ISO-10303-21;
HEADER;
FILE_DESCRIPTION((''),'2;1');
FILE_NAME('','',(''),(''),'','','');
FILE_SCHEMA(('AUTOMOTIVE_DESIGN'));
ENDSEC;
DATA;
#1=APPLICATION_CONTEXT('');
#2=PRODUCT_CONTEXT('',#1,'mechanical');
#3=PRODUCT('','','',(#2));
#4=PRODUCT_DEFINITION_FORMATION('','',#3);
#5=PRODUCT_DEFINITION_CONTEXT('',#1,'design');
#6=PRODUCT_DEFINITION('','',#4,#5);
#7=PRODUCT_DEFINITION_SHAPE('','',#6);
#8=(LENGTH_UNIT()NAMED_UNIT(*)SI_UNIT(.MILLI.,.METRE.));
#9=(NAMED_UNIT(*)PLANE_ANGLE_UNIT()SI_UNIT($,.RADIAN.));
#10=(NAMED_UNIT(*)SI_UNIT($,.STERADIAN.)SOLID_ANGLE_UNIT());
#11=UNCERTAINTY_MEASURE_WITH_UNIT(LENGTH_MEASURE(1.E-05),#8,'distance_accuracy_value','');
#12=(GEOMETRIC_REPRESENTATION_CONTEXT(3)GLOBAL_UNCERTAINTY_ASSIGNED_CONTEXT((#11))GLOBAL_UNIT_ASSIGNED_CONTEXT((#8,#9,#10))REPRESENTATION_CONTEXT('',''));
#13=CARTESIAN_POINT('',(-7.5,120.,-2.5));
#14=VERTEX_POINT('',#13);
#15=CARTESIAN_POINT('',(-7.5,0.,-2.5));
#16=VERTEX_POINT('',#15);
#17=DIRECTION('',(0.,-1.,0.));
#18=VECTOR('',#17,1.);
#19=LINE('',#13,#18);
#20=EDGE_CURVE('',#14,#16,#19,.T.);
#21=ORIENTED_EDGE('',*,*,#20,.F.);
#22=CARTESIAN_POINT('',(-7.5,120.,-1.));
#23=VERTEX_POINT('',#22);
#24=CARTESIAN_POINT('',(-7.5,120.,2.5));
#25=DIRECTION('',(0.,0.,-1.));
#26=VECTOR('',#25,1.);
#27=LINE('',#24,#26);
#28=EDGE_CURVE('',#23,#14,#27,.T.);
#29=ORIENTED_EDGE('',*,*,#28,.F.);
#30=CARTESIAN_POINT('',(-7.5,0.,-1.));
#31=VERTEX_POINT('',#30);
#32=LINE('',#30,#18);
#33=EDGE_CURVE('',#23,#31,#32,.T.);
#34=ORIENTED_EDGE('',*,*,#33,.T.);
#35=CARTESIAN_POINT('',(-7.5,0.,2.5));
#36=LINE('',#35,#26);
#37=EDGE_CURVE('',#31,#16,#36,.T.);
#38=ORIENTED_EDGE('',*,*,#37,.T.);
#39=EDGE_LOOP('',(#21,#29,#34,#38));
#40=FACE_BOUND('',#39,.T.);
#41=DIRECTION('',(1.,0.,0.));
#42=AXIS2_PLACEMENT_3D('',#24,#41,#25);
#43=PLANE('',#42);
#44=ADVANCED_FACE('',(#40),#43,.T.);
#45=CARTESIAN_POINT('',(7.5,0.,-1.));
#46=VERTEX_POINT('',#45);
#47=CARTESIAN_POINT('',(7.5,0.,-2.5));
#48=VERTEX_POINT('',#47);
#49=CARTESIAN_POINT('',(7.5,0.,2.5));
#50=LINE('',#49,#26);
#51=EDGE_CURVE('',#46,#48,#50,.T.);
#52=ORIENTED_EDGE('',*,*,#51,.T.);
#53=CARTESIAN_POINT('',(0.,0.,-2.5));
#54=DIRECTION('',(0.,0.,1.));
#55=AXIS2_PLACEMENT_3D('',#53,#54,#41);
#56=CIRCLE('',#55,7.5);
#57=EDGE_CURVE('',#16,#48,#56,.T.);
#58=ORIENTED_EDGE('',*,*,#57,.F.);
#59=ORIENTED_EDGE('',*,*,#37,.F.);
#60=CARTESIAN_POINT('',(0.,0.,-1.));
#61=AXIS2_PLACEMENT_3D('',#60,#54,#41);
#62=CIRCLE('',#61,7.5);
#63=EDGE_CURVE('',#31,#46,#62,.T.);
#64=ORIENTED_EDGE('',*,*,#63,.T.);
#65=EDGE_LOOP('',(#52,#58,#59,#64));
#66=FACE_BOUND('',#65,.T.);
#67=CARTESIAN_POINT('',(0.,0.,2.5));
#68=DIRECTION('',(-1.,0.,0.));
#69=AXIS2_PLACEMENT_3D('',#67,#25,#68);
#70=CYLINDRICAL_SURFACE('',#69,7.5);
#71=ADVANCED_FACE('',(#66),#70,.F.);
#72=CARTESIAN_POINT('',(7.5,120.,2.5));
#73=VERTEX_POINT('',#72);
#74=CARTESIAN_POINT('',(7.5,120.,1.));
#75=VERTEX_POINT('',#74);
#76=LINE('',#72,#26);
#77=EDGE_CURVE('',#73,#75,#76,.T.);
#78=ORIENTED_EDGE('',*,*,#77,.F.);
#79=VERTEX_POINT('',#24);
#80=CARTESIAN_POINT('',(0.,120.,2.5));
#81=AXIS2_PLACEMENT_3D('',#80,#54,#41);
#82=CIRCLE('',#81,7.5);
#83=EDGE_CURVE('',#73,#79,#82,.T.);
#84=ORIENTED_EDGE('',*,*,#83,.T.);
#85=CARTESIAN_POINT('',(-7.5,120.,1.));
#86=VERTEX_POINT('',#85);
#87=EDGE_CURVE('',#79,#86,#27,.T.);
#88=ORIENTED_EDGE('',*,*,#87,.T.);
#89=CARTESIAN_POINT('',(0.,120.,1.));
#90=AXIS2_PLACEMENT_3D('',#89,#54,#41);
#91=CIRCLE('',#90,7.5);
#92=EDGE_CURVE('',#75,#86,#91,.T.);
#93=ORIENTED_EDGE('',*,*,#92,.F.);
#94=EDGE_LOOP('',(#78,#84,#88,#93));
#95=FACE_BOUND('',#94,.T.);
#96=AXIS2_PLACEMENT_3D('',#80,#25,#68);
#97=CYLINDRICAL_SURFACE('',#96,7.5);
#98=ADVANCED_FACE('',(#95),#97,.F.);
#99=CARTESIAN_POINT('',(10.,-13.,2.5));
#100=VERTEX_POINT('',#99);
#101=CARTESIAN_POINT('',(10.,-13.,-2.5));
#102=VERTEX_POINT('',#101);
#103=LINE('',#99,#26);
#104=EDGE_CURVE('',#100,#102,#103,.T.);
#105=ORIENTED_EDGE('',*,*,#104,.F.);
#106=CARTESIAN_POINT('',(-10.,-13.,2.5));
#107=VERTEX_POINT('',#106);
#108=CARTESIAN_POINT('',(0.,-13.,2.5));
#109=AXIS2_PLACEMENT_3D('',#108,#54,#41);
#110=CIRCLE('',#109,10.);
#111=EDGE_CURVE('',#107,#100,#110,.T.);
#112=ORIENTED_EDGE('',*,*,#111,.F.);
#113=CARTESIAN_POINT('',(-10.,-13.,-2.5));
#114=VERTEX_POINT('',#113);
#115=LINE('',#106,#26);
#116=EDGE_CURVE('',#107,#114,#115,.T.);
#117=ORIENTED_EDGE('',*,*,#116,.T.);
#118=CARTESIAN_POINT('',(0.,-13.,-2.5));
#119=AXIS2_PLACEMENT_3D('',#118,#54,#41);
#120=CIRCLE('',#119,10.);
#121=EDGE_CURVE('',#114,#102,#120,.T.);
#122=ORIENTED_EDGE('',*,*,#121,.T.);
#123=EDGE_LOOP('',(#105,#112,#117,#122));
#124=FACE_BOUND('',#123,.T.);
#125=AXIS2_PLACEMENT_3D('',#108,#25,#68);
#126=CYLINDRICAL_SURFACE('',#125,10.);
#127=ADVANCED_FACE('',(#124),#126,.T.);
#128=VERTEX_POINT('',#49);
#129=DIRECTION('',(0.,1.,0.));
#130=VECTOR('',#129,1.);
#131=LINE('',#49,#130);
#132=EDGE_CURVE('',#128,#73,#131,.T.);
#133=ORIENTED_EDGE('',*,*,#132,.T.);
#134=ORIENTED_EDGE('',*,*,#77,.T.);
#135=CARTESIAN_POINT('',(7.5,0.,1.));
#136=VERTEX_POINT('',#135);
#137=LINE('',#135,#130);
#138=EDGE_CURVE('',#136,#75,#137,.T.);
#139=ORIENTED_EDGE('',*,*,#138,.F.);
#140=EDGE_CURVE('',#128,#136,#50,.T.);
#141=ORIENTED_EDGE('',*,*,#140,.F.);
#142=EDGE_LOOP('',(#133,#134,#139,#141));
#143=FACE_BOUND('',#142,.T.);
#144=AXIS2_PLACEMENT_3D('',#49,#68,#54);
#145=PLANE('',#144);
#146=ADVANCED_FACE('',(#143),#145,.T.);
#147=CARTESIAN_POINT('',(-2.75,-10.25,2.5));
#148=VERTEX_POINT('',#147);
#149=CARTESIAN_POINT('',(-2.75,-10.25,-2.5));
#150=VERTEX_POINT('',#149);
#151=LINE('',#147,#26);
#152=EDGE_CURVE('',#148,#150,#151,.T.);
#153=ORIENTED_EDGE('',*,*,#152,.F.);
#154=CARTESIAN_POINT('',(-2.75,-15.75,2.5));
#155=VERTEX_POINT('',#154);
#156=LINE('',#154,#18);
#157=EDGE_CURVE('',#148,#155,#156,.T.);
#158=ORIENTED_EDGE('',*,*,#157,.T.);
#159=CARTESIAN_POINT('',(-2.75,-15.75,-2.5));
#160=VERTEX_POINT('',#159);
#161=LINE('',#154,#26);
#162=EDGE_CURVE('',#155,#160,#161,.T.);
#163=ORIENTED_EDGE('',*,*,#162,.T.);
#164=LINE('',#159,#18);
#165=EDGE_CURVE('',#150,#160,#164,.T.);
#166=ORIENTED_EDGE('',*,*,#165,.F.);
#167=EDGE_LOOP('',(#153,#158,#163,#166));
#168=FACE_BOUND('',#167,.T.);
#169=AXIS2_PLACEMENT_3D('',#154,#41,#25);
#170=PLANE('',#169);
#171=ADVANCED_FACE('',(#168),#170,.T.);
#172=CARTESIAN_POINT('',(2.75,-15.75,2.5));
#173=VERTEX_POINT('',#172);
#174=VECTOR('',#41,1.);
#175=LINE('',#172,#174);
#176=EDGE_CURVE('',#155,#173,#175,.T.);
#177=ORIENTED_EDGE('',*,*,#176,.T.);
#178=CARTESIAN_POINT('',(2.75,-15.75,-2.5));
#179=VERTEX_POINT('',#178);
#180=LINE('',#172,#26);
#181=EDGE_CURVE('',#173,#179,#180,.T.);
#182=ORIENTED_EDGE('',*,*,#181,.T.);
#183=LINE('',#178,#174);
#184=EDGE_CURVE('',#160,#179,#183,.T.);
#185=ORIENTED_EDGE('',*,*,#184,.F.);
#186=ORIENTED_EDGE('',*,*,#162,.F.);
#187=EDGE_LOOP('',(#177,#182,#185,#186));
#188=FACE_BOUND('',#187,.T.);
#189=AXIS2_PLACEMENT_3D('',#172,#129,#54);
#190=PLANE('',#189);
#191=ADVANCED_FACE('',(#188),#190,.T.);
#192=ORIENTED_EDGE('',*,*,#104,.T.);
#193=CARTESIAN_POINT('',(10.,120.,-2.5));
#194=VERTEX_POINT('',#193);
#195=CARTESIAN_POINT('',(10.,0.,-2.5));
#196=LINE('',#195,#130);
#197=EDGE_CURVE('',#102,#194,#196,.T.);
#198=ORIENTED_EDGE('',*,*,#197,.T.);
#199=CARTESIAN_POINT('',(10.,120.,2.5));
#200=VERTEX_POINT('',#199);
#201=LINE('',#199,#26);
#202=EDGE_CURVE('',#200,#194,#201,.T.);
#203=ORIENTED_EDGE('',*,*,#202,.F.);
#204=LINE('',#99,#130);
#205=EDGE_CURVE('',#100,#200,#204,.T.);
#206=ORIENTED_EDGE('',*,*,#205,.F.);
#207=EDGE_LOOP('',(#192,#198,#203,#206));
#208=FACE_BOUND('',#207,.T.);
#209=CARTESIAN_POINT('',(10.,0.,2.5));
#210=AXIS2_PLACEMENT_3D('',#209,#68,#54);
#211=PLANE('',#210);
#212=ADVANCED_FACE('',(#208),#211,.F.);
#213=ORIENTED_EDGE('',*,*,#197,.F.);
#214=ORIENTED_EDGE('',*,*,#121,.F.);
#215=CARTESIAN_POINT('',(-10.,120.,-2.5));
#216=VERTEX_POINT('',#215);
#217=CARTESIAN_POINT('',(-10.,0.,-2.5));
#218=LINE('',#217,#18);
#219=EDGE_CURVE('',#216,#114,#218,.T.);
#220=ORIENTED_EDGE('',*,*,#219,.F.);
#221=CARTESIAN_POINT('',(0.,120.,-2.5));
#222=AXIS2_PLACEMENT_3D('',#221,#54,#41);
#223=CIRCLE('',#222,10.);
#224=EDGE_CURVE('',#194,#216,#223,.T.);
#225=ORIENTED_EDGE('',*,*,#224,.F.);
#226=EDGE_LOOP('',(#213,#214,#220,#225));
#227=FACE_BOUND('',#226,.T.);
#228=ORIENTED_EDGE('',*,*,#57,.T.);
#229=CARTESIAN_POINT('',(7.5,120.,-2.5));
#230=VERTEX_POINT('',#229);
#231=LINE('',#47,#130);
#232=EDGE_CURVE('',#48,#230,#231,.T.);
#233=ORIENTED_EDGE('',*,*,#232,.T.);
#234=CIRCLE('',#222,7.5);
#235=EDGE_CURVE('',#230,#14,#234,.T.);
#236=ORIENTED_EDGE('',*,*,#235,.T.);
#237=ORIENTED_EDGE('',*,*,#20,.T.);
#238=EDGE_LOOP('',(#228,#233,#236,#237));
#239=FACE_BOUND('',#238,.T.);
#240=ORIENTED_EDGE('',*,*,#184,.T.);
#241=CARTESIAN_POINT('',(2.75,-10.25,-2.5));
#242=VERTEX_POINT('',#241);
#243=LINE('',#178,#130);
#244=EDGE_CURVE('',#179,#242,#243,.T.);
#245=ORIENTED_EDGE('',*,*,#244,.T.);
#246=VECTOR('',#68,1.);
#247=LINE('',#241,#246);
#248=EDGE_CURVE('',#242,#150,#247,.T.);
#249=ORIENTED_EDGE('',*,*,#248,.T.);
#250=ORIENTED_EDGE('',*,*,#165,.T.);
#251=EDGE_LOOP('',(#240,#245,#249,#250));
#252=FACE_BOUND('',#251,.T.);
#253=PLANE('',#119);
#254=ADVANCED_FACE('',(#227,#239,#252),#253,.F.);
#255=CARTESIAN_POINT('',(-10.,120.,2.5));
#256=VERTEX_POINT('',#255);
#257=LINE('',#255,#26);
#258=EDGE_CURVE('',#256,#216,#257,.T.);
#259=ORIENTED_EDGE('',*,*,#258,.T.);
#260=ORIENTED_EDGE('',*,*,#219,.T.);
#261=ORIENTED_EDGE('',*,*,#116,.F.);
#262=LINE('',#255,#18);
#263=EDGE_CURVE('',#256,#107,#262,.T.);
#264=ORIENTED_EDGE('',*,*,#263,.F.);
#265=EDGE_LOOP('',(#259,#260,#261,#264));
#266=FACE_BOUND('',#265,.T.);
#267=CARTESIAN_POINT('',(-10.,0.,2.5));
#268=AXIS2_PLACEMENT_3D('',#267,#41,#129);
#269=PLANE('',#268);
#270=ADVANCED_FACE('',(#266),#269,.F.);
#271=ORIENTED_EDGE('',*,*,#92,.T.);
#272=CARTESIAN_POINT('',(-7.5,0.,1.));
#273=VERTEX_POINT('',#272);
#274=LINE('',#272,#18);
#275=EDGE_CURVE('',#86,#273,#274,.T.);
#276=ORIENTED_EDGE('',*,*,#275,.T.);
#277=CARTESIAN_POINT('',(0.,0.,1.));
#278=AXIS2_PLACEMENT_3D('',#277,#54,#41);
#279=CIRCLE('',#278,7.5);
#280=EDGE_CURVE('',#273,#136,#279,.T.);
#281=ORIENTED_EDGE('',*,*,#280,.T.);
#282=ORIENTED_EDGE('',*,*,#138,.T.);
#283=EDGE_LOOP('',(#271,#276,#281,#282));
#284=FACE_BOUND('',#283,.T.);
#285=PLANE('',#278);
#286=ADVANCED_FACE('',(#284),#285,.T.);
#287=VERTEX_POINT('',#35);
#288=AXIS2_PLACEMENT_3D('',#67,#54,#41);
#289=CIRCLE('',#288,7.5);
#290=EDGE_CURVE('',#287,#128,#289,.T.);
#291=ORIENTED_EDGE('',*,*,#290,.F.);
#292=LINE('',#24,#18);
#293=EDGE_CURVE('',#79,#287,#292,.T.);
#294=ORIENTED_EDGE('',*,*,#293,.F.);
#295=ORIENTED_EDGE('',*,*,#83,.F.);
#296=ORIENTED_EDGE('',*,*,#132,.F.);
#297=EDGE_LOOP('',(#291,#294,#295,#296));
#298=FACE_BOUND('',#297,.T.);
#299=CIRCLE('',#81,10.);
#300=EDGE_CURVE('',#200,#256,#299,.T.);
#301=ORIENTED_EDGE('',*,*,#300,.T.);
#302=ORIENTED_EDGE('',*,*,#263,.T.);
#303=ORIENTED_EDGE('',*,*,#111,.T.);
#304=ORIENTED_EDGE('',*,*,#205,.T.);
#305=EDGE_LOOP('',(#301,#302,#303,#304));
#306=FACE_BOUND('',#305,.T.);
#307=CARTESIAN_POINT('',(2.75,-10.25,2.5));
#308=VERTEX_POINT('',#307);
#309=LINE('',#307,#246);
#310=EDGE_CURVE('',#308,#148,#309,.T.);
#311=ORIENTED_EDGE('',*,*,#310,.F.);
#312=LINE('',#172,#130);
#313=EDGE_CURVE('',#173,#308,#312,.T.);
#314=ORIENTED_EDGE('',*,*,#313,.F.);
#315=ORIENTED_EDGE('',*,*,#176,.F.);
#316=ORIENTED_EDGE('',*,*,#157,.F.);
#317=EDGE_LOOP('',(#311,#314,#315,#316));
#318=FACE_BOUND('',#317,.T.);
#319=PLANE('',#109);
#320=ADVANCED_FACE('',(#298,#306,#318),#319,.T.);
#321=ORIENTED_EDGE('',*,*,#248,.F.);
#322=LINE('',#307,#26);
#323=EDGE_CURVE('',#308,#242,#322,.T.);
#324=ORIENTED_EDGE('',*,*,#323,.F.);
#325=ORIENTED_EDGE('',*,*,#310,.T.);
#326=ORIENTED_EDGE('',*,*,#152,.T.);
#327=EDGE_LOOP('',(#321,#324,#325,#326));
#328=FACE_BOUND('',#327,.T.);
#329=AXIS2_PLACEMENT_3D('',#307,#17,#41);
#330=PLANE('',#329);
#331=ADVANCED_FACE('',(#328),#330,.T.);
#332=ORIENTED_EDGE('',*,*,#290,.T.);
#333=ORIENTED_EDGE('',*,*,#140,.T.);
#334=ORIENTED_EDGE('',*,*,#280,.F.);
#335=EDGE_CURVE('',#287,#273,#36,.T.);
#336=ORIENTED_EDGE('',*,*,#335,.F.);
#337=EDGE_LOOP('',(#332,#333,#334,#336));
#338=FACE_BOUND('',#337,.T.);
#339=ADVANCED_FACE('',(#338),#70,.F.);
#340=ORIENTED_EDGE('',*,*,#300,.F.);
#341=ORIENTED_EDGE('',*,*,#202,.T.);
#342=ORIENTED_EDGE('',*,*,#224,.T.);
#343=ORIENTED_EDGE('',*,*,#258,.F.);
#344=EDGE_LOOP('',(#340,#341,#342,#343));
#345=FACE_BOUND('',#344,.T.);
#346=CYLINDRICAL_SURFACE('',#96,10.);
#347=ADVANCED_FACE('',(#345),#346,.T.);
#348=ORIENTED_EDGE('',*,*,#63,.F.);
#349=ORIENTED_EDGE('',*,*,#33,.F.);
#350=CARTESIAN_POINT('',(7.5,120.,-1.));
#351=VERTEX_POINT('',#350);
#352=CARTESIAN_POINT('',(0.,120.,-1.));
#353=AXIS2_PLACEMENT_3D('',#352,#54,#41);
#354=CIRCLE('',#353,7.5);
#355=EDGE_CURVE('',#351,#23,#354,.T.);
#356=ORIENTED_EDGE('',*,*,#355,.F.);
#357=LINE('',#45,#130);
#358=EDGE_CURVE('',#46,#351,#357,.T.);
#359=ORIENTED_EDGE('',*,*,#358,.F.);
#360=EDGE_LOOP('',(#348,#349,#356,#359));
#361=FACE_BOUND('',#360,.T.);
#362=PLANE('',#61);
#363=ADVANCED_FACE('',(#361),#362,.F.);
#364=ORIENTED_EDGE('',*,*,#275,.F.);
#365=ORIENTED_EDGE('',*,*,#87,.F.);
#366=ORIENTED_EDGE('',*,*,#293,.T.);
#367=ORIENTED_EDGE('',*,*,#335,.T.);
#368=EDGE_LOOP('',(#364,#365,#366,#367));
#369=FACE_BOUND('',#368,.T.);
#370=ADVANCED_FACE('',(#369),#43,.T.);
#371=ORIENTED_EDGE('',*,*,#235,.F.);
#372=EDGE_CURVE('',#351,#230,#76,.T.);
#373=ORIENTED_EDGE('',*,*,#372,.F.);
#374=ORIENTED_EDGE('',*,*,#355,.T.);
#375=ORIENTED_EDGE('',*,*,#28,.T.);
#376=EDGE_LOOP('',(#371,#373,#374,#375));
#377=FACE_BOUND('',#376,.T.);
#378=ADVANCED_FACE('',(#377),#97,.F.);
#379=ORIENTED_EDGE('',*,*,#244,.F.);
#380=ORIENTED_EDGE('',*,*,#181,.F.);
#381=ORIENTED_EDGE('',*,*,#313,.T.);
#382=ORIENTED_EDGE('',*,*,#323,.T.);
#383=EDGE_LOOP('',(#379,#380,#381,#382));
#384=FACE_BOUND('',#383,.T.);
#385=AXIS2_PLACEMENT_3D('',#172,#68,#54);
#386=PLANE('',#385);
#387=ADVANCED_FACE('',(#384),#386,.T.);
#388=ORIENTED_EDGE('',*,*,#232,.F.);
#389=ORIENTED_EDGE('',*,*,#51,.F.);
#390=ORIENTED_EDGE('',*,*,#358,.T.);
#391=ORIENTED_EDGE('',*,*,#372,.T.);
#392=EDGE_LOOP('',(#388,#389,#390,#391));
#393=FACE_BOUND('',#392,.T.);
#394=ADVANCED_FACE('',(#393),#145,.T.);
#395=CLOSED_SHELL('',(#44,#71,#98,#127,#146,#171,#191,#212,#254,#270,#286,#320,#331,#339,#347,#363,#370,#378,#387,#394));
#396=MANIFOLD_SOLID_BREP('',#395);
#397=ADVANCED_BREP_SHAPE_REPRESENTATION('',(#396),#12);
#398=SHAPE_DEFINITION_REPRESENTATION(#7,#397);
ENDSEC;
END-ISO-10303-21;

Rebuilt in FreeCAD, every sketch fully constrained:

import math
import FreeCAD as App
import Part
import Sketcher
from FreeCAD import Vector
Q = App.Units.Quantity


def add_polygon(sketch, points):
    """Adds a closed chain of lines whose ends are joined by coincident constraints."""
    first, n = sketch.GeometryCount, len(points)
    for a, b in zip(points, points[1:] + points[:1]):
        sketch.addGeometry(Part.LineSegment(App.Vector(*a, 0), App.Vector(*b, 0)), False)
    for i in range(n):
        sketch.addConstraint(Sketcher.Constraint("Coincident", first + i, 2, first + (i + 1) % n, 1))

doc = App.newDocument("Part")
body = doc.addObject("PartDesign::Body", "Body")

sketch1 = doc.addObject("Sketcher::SketchObject", "Sketch")
body.addObject(sketch1)
sketch1.AttachmentSupport = (doc.XY_Plane, [""])
sketch1.MapMode = "FlatFace"
sketch1.addGeometry(Part.LineSegment(Vector(-8, 120, 0), Vector(-8, 0, 0)), False)
sketch1.addGeometry(Part.ArcOfCircle(Part.Circle(Vector(0, 0, 0), Vector(0, 0, 1), 8), math.radians(180), math.radians(360)), False)
sketch1.addGeometry(Part.LineSegment(Vector(8, 0, 0), Vector(8, 120, 0)), False)
sketch1.addGeometry(Part.ArcOfCircle(Part.Circle(Vector(0, 120, 0), Vector(0, 0, 1), 8), math.radians(0), math.radians(180)), False)
sketch1.addConstraint(Sketcher.Constraint("Tangent", 0, 2, 1, 1))
sketch1.addConstraint(Sketcher.Constraint("Tangent", 1, 2, 2, 1))
sketch1.addConstraint(Sketcher.Constraint("Tangent", 2, 2, 3, 1))
sketch1.addConstraint(Sketcher.Constraint("Tangent", 3, 2, 0, 1))
sketch1.addConstraint(Sketcher.Constraint("Vertical", 0))
sketch1.addConstraint(Sketcher.Constraint("Vertical", 2))
sketch1.addConstraint(Sketcher.Constraint("Coincident", 1, 3, -1, 1))
sketch1.addConstraint(Sketcher.Constraint("Radius", 1, Q("7.5 mm")))
sketch1.addConstraint(Sketcher.Constraint("DistanceY", 0, 2, 0, 1, Q("120 mm")))
pad1 = doc.addObject("PartDesign::Pad", "Pad")
body.addObject(pad1)
pad1.Profile = sketch1
pad1.Length = 2
pad1.Midplane = True

sketch2 = doc.addObject("Sketcher::SketchObject", "Sketch001")
body.addObject(sketch2)
sketch2.AttachmentSupport = (doc.XY_Plane, [""])
sketch2.MapMode = "FlatFace"
sketch2.addGeometry(Part.ArcOfCircle(Part.Circle(Vector(0, -13, 0), Vector(0, 0, 1), 10), math.radians(180), math.radians(360)), False)
sketch2.addGeometry(Part.LineSegment(Vector(10, -13, 0), Vector(10, 120, 0)), False)
sketch2.addGeometry(Part.ArcOfCircle(Part.Circle(Vector(0, 120, 0), Vector(0, 0, 1), 10), math.radians(0), math.radians(180)), False)
sketch2.addGeometry(Part.LineSegment(Vector(-10, 120, 0), Vector(-10, -13, 0)), False)
add_polygon(sketch2, [(3, -16), (-3, -16), (-3, -10), (3, -10)])
sketch2.addGeometry(Part.LineSegment(Vector(-8, 0, 0), Vector(-8, 120, 0)), False)
sketch2.addGeometry(Part.ArcOfCircle(Part.Circle(Vector(0, 120, 0), Vector(0, 0, 1), 8), math.radians(0), math.radians(180)), False)
sketch2.addGeometry(Part.LineSegment(Vector(8, 120, 0), Vector(8, 0, 0)), False)
sketch2.addGeometry(Part.ArcOfCircle(Part.Circle(Vector(0, 0, 0), Vector(0, 0, 1), 8), math.radians(180), math.radians(360)), False)
sketch2.addConstraint(Sketcher.Constraint("Tangent", 0, 2, 1, 1))
sketch2.addConstraint(Sketcher.Constraint("Tangent", 1, 2, 2, 1))
sketch2.addConstraint(Sketcher.Constraint("Tangent", 2, 2, 3, 1))
sketch2.addConstraint(Sketcher.Constraint("Tangent", 3, 2, 0, 1))
sketch2.addConstraint(Sketcher.Constraint("Tangent", 8, 2, 9, 2))
sketch2.addConstraint(Sketcher.Constraint("Tangent", 9, 1, 10, 1))
sketch2.addConstraint(Sketcher.Constraint("Tangent", 10, 2, 11, 2))
sketch2.addConstraint(Sketcher.Constraint("Tangent", 11, 1, 8, 1))
sketch2.addConstraint(Sketcher.Constraint("Vertical", 1))
sketch2.addConstraint(Sketcher.Constraint("Vertical", 3))
sketch2.addConstraint(Sketcher.Constraint("Horizontal", 4))
sketch2.addConstraint(Sketcher.Constraint("Vertical", 5))
sketch2.addConstraint(Sketcher.Constraint("Horizontal", 6))
sketch2.addConstraint(Sketcher.Constraint("Vertical", 7))
sketch2.addConstraint(Sketcher.Constraint("Vertical", 8))
sketch2.addConstraint(Sketcher.Constraint("Vertical", 10))
sketch2.addConstraint(Sketcher.Constraint("Coincident", 11, 3, -1, 1))
sketch2.addConstraint(Sketcher.Constraint("Coincident", 9, 3, 2, 3))
sketch2.addConstraint(Sketcher.Constraint("Equal", 6, 5))
sketch2.addConstraint(Sketcher.Constraint("Radius", 0, Q("10 mm")))
sketch2.addConstraint(Sketcher.Constraint("Radius", 9, Q("7.5 mm")))
sketch2.addConstraint(Sketcher.Constraint("DistanceY", 1, 1, 1, 2, Q("133 mm")))
sketch2.addConstraint(Sketcher.Constraint("DistanceY", 8, 1, 8, 2, Q("120 mm")))
sketch2.addConstraint(Sketcher.Constraint("DistanceX", 4, 2, 4, 1, Q("5.5 mm")))
sketch2.addConstraint(Sketcher.Constraint("DistanceX", 4, 2, -1, 1, Q("2.75 mm")))
sketch2.addConstraint(Sketcher.Constraint("DistanceY", 4, 2, -1, 1, Q("15.75 mm")))
pad2 = doc.addObject("PartDesign::Pad", "Pad001")
body.addObject(pad2)
pad2.Profile = sketch2
pad2.Length = 5
pad2.Midplane = True

doc.recompute()
